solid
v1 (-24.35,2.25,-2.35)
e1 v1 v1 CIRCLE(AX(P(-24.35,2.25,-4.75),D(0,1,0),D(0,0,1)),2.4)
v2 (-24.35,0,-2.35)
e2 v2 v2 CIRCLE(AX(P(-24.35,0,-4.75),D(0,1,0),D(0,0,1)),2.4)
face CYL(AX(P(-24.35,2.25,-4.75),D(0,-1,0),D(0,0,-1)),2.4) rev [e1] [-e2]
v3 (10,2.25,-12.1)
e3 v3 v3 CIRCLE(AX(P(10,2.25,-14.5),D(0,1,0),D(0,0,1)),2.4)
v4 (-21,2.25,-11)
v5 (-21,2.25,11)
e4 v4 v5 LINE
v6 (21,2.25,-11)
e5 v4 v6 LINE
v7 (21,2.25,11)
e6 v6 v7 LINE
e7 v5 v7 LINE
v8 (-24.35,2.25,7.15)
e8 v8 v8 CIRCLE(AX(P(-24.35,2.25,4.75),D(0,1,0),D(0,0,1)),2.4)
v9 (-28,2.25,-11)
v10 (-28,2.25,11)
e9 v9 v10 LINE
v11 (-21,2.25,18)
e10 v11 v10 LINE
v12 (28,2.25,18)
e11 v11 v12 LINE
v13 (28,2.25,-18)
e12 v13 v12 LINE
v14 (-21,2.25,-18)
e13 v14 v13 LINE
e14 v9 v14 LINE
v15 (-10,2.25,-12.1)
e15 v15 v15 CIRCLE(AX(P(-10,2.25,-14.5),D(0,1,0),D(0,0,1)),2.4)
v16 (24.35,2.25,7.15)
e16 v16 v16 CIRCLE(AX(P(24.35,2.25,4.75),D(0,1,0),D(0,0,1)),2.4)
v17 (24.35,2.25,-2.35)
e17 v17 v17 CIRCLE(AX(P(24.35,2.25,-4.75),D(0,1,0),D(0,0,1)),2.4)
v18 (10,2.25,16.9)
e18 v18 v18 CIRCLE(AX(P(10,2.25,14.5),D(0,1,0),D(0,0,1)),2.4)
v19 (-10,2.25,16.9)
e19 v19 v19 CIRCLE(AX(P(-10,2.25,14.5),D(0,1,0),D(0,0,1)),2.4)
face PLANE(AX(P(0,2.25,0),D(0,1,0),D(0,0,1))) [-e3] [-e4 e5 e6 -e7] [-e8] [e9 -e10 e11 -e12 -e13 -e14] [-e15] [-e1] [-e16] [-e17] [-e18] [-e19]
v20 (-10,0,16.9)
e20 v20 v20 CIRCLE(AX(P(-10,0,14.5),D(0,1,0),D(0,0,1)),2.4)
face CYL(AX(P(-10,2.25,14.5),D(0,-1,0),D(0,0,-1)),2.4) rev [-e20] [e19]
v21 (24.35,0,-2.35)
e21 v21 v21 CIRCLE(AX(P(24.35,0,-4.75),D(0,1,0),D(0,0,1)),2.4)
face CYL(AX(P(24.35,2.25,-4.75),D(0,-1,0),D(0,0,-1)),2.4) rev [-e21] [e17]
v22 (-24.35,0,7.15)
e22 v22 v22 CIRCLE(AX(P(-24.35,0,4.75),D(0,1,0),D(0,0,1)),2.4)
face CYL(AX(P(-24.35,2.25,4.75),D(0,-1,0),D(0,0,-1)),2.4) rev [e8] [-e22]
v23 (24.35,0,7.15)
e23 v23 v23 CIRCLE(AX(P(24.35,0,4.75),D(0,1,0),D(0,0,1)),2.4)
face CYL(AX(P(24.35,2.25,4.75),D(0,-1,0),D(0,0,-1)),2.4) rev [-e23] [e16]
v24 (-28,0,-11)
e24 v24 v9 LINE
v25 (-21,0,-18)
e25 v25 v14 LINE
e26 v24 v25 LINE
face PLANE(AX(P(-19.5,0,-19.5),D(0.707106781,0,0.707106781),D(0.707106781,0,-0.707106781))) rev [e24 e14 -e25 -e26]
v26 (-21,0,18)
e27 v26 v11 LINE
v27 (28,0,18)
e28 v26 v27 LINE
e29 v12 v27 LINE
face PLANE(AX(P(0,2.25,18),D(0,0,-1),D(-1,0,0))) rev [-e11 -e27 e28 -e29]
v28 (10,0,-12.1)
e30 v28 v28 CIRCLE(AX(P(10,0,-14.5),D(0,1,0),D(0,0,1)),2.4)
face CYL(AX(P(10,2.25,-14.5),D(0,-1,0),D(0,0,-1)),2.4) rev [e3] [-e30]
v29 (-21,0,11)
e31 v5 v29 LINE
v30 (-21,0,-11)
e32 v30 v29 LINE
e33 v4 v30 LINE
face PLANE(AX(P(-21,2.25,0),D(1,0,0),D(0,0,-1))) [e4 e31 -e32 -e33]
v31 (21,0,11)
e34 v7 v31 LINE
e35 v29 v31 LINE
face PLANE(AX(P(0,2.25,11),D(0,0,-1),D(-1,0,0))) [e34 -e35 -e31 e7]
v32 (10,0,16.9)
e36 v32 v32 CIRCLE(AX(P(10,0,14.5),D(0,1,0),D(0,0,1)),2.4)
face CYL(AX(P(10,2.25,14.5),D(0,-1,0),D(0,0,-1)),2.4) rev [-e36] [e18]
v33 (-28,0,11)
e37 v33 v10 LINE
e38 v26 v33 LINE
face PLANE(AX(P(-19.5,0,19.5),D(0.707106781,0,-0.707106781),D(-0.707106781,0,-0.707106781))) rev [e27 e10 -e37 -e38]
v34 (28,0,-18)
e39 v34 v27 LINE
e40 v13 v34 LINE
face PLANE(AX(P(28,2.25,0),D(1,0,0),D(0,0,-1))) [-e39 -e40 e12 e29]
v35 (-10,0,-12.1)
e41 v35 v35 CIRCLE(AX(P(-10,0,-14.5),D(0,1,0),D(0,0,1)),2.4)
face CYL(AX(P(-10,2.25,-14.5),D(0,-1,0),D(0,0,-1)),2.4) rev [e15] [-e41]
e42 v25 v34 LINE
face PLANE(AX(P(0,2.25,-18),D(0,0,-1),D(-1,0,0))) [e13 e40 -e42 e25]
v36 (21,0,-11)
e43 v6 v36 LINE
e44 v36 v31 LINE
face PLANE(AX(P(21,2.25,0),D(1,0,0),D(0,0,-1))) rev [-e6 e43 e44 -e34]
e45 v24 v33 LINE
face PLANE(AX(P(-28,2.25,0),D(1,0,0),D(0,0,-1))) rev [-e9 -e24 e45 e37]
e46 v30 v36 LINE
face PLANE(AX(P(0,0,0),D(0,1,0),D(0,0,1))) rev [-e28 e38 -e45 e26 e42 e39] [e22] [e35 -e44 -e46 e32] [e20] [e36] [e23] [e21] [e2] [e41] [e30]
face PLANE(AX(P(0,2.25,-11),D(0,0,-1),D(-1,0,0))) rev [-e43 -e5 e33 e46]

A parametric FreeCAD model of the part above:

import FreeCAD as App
import Part
import Sketcher
from FreeCAD import Vector


def add_polygon(sketch, points):
    """Adds a closed chain of lines whose ends are joined by coincident constraints."""
    first, n = sketch.GeometryCount, len(points)
    for a, b in zip(points, points[1:] + points[:1]):
        sketch.addGeometry(Part.LineSegment(App.Vector(*a, 0), App.Vector(*b, 0)), False)
    for i in range(n):
        sketch.addConstraint(Sketcher.Constraint("Coincident", first + i, 2, first + (i + 1) % n, 1))

doc = App.newDocument("Part")
body = doc.addObject("PartDesign::Body", "Body")

# Sketch on XZ plane
sketch1 = body.newObject("Sketcher::SketchObject", "Sketch")
sketch1.AttachmentSupport = (doc.getObject("XZ_Plane"), [""])
sketch1.MapMode = "FlatFace"
add_polygon(sketch1, [(-28, -18), (-28, 18), (28, 18), (28, -18)])  # lines 0-3
sketch1.addGeometry(Part.Circle(Vector(-10, 14.5, 0), Vector(0, 0, 1), 2.4), False)  # 4
sketch1.addGeometry(Part.Circle(Vector(-24.35, 4.75, 0), Vector(0, 0, 1), 2.4), False)  # 5
sketch1.addGeometry(Part.Circle(Vector(10, 14.5, 0), Vector(0, 0, 1), 2.4), False)  # 6
sketch1.addGeometry(Part.Circle(Vector(24.35, 4.75, 0), Vector(0, 0, 1), 2.4), False)  # 7
sketch1.addGeometry(Part.Circle(Vector(-24.35, -4.75, 0), Vector(0, 0, 1), 2.4), False)  # 8
add_polygon(sketch1, [(21, 11), (-21, 11), (-21, -11), (21, -11)])  # lines 9-12
sketch1.addGeometry(Part.Circle(Vector(-10, -14.5, 0), Vector(0, 0, 1), 2.4), False)  # 13
sketch1.addGeometry(Part.Circle(Vector(24.35, -4.75, 0), Vector(0, 0, 1), 2.4), False)  # 14
sketch1.addGeometry(Part.Circle(Vector(10, -14.5, 0), Vector(0, 0, 1), 2.4), False)  # 15
sketch1.addConstraint(Sketcher.Constraint("Vertical", 0))
sketch1.addConstraint(Sketcher.Constraint("Horizontal", 1))
sketch1.addConstraint(Sketcher.Constraint("Vertical", 2))
sketch1.addConstraint(Sketcher.Constraint("Horizontal", 3))
sketch1.addConstraint(Sketcher.Constraint("Horizontal", 9))
sketch1.addConstraint(Sketcher.Constraint("Vertical", 10))
sketch1.addConstraint(Sketcher.Constraint("Horizontal", 11))
sketch1.addConstraint(Sketcher.Constraint("Vertical", 12))
sketch1.addConstraint(Sketcher.Constraint("Equal", 4, 5))
sketch1.addConstraint(Sketcher.Constraint("Equal", 5, 6))
sketch1.addConstraint(Sketcher.Constraint("Equal", 6, 7))
sketch1.addConstraint(Sketcher.Constraint("Equal", 7, 8))
sketch1.addConstraint(Sketcher.Constraint("Equal", 8, 13))
sketch1.addConstraint(Sketcher.Constraint("Equal", 13, 14))
sketch1.addConstraint(Sketcher.Constraint("Equal", 14, 15))
sketch1.addConstraint(Sketcher.Constraint("Symmetric", 7, 3, 8, 3, -1, 1))
sketch1.addConstraint(Sketcher.Constraint("Symmetric", 6, 3, 13, 3, -1, 1))
sketch1.addConstraint(Sketcher.Constraint("Symmetric", 5, 3, 14, 3, -1, 1))
sketch1.addConstraint(Sketcher.Constraint("Symmetric", 4, 3, 15, 3, -1, 1))
sketch1.addConstraint(Sketcher.Constraint("Symmetric", 0, 2, 2, 2, -1, 1))
sketch1.addConstraint(Sketcher.Constraint("Symmetric", 9, 2, 11, 2, -1, 1))
sketch1.addConstraint(Sketcher.Constraint("Symmetric", 4, 3, 6, 3, -2))
sketch1.addConstraint(Sketcher.Constraint("Symmetric", 5, 3, 7, 3, -2))
sketch1.addConstraint(Sketcher.Constraint("Diameter", 4, 4.8))
sketch1.addConstraint(Sketcher.Constraint("DistanceX", 1, 1, 1, 2, 56.0))
sketch1.addConstraint(Sketcher.Constraint("DistanceX", 9, 2, 9, 1, 42.0))
sketch1.addConstraint(Sketcher.Constraint("DistanceY", 0, 1, 0, 2, 36.0))
sketch1.addConstraint(Sketcher.Constraint("DistanceY", 10, 2, 10, 1, 22.0))
sketch1.addConstraint(Sketcher.Constraint("DistanceX", 4, 3, -1, 1, 10.0))
sketch1.addConstraint(Sketcher.Constraint("DistanceY", 13, 3, 4, 3, 29.0))
sketch1.addConstraint(Sketcher.Constraint("DistanceX", 5, 3, 7, 3, 48.7))
sketch1.addConstraint(Sketcher.Constraint("DistanceY", 8, 3, 5, 3, 9.5))
pad1 = body.newObject("PartDesign::Pad", "Pad")
pad1.Profile = sketch1
pad1.Length = 2.25
pad1.Reversed = True

# Sketch on XZ plane
sketch2 = body.newObject("Sketcher::SketchObject", "Sketch001")
sketch2.AttachmentSupport = (doc.getObject("XZ_Plane"), [""])
sketch2.MapMode = "FlatFace"
sketch2.AttachmentOffset = App.Placement(Vector(0, 0, -2.25), App.Rotation())
add_polygon(sketch2, [(-28, -11), (-21, -18), (-28, -18)])  # lines 0-2
add_polygon(sketch2, [(-21, 18), (-28, 11), (-28, 18)])  # lines 3-5
sketch2.addConstraint(Sketcher.Constraint("Horizontal", 1))
sketch2.addConstraint(Sketcher.Constraint("Vertical", 2))
sketch2.addConstraint(Sketcher.Constraint("Vertical", 4))
sketch2.addConstraint(Sketcher.Constraint("Horizontal", 5))
sketch2.addConstraint(Sketcher.Constraint("Symmetric", 2, 2, 3, 2, -1))
sketch2.addConstraint(Sketcher.Constraint("Symmetric", 0, 2, 5, 2, -1))
sketch2.addConstraint(Sketcher.Constraint("Perpendicular", 0, 3))
sketch2.addConstraint(Sketcher.Constraint("DistanceX", 1, 2, 1, 1, 7.0))
sketch2.addConstraint(Sketcher.Constraint("DistanceX", 0, 2, -1, 1, 21.0))
sketch2.addConstraint(Sketcher.Constraint("DistanceY", 0, 2, -1, 1, 18.0))
pocket1 = body.newObject("PartDesign::Pocket", "Pocket")
pocket1.Profile = sketch2
pocket1.Length = 2.25
pocket1.Reversed = True

doc.recompute()
